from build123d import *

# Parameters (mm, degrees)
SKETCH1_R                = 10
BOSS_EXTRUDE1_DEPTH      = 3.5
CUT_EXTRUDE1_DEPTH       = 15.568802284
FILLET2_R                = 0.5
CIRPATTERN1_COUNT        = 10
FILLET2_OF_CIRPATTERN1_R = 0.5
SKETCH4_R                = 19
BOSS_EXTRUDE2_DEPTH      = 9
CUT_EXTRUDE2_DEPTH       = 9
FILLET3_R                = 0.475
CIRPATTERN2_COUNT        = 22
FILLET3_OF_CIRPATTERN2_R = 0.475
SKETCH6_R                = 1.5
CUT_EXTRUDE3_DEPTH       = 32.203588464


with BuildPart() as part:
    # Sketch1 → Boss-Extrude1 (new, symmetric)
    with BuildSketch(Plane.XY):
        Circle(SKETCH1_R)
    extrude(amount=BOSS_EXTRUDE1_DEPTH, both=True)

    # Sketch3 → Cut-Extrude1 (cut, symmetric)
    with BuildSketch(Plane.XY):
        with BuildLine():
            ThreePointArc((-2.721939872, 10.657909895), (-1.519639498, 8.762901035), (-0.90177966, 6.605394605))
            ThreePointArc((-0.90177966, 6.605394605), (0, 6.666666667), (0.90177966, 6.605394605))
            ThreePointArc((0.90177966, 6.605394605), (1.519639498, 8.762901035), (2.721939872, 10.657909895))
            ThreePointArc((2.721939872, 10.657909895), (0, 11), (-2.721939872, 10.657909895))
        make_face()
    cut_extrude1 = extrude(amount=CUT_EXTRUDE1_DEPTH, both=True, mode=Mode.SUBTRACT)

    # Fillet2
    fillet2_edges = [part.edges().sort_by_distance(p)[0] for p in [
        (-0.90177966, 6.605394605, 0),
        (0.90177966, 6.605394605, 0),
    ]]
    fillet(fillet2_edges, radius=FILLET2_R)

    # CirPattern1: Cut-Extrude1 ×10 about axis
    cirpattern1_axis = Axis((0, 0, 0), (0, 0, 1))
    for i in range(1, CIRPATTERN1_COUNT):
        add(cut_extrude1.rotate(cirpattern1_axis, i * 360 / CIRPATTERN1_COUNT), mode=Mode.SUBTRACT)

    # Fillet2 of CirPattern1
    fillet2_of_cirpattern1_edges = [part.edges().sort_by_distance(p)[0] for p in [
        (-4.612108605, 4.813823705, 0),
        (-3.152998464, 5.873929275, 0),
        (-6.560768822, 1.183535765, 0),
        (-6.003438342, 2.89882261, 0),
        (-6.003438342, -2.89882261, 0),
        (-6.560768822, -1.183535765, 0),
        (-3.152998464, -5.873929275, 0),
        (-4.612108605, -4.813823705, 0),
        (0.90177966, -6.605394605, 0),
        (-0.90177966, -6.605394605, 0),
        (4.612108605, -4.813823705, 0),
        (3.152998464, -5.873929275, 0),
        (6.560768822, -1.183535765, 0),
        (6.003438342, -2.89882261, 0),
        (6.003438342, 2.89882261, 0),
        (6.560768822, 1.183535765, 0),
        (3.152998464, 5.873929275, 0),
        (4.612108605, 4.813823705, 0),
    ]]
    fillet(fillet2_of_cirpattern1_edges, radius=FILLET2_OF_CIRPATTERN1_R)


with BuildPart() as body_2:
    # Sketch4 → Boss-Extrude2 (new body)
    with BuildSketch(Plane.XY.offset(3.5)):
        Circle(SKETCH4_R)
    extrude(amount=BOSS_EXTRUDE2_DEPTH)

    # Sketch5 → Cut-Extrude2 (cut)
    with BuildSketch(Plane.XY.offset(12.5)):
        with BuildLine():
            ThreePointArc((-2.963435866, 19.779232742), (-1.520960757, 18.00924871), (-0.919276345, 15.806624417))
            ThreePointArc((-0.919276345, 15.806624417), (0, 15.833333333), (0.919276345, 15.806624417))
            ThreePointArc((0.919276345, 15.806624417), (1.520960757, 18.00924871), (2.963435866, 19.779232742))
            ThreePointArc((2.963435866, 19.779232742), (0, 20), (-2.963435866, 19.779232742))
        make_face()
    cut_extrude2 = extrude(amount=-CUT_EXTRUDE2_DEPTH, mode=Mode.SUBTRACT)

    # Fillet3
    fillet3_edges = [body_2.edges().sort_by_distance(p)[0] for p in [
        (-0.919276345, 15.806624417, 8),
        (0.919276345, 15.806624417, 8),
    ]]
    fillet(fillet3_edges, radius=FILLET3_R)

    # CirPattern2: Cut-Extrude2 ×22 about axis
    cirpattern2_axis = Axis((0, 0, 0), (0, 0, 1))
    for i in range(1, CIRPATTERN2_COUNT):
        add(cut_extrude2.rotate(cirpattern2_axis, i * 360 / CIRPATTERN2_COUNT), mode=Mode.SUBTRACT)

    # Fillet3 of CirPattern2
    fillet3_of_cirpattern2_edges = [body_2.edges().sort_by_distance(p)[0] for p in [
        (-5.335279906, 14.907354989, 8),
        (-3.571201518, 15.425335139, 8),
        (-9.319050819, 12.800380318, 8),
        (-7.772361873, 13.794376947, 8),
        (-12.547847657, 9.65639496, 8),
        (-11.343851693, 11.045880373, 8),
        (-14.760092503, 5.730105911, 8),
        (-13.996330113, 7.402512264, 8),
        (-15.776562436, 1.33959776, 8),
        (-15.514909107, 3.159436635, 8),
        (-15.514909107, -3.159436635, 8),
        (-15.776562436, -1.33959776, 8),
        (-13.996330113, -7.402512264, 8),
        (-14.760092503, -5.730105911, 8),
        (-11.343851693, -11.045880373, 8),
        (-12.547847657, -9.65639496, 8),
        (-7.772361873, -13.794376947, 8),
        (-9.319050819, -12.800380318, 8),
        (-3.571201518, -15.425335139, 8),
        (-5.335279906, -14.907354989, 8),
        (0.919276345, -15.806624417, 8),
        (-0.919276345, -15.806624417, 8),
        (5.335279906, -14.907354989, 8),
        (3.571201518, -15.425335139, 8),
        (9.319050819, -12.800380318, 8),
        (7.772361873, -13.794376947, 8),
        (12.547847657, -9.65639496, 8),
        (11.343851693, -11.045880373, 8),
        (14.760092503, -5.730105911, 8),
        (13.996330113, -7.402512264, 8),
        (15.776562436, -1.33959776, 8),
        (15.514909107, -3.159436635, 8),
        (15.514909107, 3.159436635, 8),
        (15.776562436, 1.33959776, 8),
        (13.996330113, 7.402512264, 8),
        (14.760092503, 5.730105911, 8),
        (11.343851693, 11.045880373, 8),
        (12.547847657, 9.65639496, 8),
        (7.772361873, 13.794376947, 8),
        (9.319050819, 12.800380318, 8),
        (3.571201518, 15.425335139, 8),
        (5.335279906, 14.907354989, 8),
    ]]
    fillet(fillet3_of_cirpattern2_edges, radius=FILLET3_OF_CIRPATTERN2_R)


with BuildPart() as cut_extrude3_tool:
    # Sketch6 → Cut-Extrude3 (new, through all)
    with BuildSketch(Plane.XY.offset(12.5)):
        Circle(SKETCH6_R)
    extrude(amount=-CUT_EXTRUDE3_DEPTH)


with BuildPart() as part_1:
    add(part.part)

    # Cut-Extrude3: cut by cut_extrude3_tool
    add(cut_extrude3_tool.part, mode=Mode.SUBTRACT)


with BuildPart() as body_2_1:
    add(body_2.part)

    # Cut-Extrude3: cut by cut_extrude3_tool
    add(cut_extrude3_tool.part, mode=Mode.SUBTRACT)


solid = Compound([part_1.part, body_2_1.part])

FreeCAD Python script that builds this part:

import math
import FreeCAD as App
import Part
import Sketcher
Q = App.Units.Quantity


def edges_at(feature, points):
    """Names of the edges that pass closest to the given points."""
    edges = feature.Shape.Edges
    near = lambda p: min(range(len(edges)), key=lambda i: edges[i].distToShape(Part.Vertex(*p))[0])
    return sorted({f"Edge{near(p) + 1}" for p in points})

doc = App.newDocument("Part")
params = doc.addObject("Spreadsheet::Sheet", "Params")
for row, (alias, value) in enumerate([
    ("sketch1_diameter", "20 mm"),
    ("pad1_length", "7 mm"),
    ("sketch2_radius", "11 mm"),
    ("pocket1_length", "31.137605 mm"),
    ("fillet_radius", "0.5 mm"),
    ("fillet2_radius", "0.5 mm"),
    ("sketch3_diameter", "38 mm"),
    ("pad2_length", "9 mm"),
    ("sketch4_radius", "20 mm"),
    ("pocket2_length", "9 mm"),
    ("fillet3_radius", "0.475 mm"),
    ("fillet4_radius", "0.475 mm"),
    ("sketch5_diameter", "3 mm"),
    ("pad3_length", "32.203588 mm"),
], start=1):
    params.set(f"A{row}", alias)
    params.set(f"B{row}", "=" + value)
    params.setAlias(f"B{row}", alias)

body = doc.addObject("PartDesign::Body", "Body")

# Sketch on XY plane
sketch1 = doc.addObject("Sketcher::SketchObject", "Sketch")
body.addObject(sketch1)
sketch1.AttachmentSupport = (doc.XY_Plane, [""])
sketch1.MapMode = "FlatFace"
sketch1.addGeometry(Part.Circle(App.Vector(0, 0, 0), App.Vector(0, 0, 1), 10), False)
sketch1.addConstraint(Sketcher.Constraint("Coincident", 0, 3, -1, 1))
sketch1.addConstraint(Sketcher.Constraint("Diameter", 0, Q("20 mm")))
sketch1.setExpression("Constraints[1]", "Params.sketch1_diameter")
pad1 = doc.addObject("PartDesign::Pad", "Pad")
body.addObject(pad1)
pad1.Profile = sketch1
pad1.setExpression("Length", "Params.pad1_length")
pad1.Midplane = True

# Sketch on XY plane
sketch2 = doc.addObject("Sketcher::SketchObject", "Sketch001")
body.addObject(sketch2)
sketch2.AttachmentSupport = (doc.XY_Plane, [""])
sketch2.MapMode = "FlatFace"
sketch2.addGeometry(Part.ArcOfCircle(Part.Circle(App.Vector(-8.7, 5.5, 0), App.Vector(0, 0, 1), 7.9), math.radians(8), math.radians(41)), False)
sketch2.addGeometry(Part.ArcOfCircle(Part.Circle(App.Vector(0, 0, 0), App.Vector(0, 0, 1), 6.7), math.radians(82.23), math.radians(97.77)), False)
sketch2.addGeometry(Part.ArcOfCircle(Part.Circle(App.Vector(8.7, 5.5, 0), App.Vector(0, 0, 1), 7.9), math.radians(139), math.radians(172)), False)
sketch2.addGeometry(Part.ArcOfCircle(Part.Circle(App.Vector(0, 0, 0), App.Vector(0, 0, 1), 11), math.radians(76), math.radians(104)), False)
sketch2.addConstraint(Sketcher.Constraint("Coincident", 0, 1, 1, 2))
sketch2.addConstraint(Sketcher.Constraint("Coincident", 1, 1, 2, 2))
sketch2.addConstraint(Sketcher.Constraint("Coincident", 2, 1, 3, 1))
sketch2.addConstraint(Sketcher.Constraint("Coincident", 3, 2, 0, 2))
sketch2.addConstraint(Sketcher.Constraint("Coincident", 1, 3, -1, 1))
sketch2.addConstraint(Sketcher.Constraint("Coincident", 3, 3, -1, 1))
sketch2.addConstraint(Sketcher.Constraint("Equal", 0, 2))
sketch2.addConstraint(Sketcher.Constraint("Symmetric", 0, 3, 2, 3, -2))
sketch2.addConstraint(Sketcher.Constraint("Radius", 3, Q("11 mm")))
sketch2.addConstraint(Sketcher.Constraint("Radius", 0, Q("7.861265 mm")))
sketch2.addConstraint(Sketcher.Constraint("Radius", 1, Q("6.666667 mm")))
sketch2.addConstraint(Sketcher.Constraint("DistanceX", 0, 1, -1, 1, Q("0.90178 mm")))
sketch2.addConstraint(Sketcher.Constraint("DistanceX", -1, 1, 2, 1, Q("2.72194 mm")))
sketch2.setExpression("Constraints[8]", "Params.sketch2_radius")
pocket1 = doc.addObject("PartDesign::Pocket", "Pocket")
body.addObject(pocket1)
pocket1.Profile = sketch2
pocket1.setExpression("Length", "Params.pocket1_length")
pocket1.Midplane = True
doc.recompute()

fillet = doc.addObject("PartDesign::Fillet", "Fillet")
body.addObject(fillet)
fillet.Base = (pocket1, edges_at(pocket1, [(-0.902, 6.605, 0), (0.902, 6.605, 0)]))
fillet.setExpression("Radius", "Params.fillet_radius")
doc.recompute()

polarpattern = doc.addObject("PartDesign::PolarPattern", "PolarPattern")
body.addObject(polarpattern)
polarpattern.Originals = [pocket1]
polarpattern.Axis = (doc.Z_Axis, [""])
polarpattern.Angle = 360
polarpattern.Occurrences = 10
body.Tip = polarpattern
doc.recompute()

fillet2 = doc.addObject("PartDesign::Fillet", "Fillet001")
body.addObject(fillet2)
fillet2.Base = (polarpattern, edges_at(polarpattern, [
    (-4.612, 4.814, 0),
    (-3.153, 5.874, 0),
    (-6.561, 1.184, 0),
    (-6.003, 2.899, 0),
    (-6.003, -2.899, 0),
    (-6.561, -1.184, 0),
    (-3.153, -5.874, 0),
    (-4.612, -4.814, 0),
    (0.902, -6.605, 0),
    (-0.902, -6.605, 0),
    (4.612, -4.814, 0),
    (3.153, -5.874, 0),
    (6.561, -1.184, 0),
    (6.003, -2.899, 0),
    (6.003, 2.899, 0),
    (6.561, 1.184, 0),
    (3.153, 5.874, 0),
    (4.612, 4.814, 0),
]))
fillet2.setExpression("Radius", "Params.fillet2_radius")
body2 = doc.addObject("PartDesign::Body", "Body001")

# Sketch on XY plane
sketch3 = doc.addObject("Sketcher::SketchObject", "Sketch002")
body2.addObject(sketch3)
sketch3.AttachmentSupport = (doc.getObject("XY_Plane001"), [""])
sketch3.MapMode = "FlatFace"
sketch3.AttachmentOffset = App.Placement(App.Vector(0, 0, 3.5), App.Rotation())
sketch3.addGeometry(Part.Circle(App.Vector(0, 0, 0), App.Vector(0, 0, 1), 19), False)
sketch3.addConstraint(Sketcher.Constraint("Coincident", 0, 3, -1, 1))
sketch3.addConstraint(Sketcher.Constraint("Diameter", 0, Q("38 mm")))
sketch3.setExpression("Constraints[1]", "Params.sketch3_diameter")
pad2 = doc.addObject("PartDesign::Pad", "Pad001")
body2.addObject(pad2)
pad2.Profile = sketch3
pad2.setExpression("Length", "Params.pad2_length")

# Sketch on XY plane
sketch4 = doc.addObject("Sketcher::SketchObject", "Sketch003")
body2.addObject(sketch4)
sketch4.AttachmentSupport = (doc.getObject("XY_Plane001"), [""])
sketch4.MapMode = "FlatFace"
sketch4.AttachmentOffset = App.Placement(App.Vector(0, 0, 12.5), App.Rotation())
sketch4.addGeometry(Part.ArcOfCircle(Part.Circle(App.Vector(-6.4, 15.5, 0), App.Vector(0, 0, 1), 5.5), math.radians(3), math.radians(51)), False)
sketch4.addGeometry(Part.ArcOfCircle(Part.Circle(App.Vector(0, 0, 0), App.Vector(0, 0, 1), 15.8), math.radians(86.67), math.radians(93.33)), False)
sketch4.addGeometry(Part.ArcOfCircle(Part.Circle(App.Vector(6.4, 15.5, 0), App.Vector(0, 0, 1), 5.5), math.radians(129), math.radians(177)), False)
sketch4.addGeometry(Part.ArcOfCircle(Part.Circle(App.Vector(0, 0, 0), App.Vector(0, 0, 1), 20), math.radians(81.48), math.radians(98.52)), False)
sketch4.addConstraint(Sketcher.Constraint("Coincident", 0, 1, 1, 2))
sketch4.addConstraint(Sketcher.Constraint("Coincident", 1, 1, 2, 2))
sketch4.addConstraint(Sketcher.Constraint("Coincident", 2, 1, 3, 1))
sketch4.addConstraint(Sketcher.Constraint("Coincident", 3, 2, 0, 2))
sketch4.addConstraint(Sketcher.Constraint("Coincident", 1, 3, -1, 1))
sketch4.addConstraint(Sketcher.Constraint("Coincident", 3, 3, -1, 1))
sketch4.addConstraint(Sketcher.Constraint("Equal", 0, 2))
sketch4.addConstraint(Sketcher.Constraint("Symmetric", 0, 3, 2, 3, -2))
sketch4.addConstraint(Sketcher.Constraint("Radius", 3, Q("20 mm")))
sketch4.addConstraint(Sketcher.Constraint("Radius", 0, Q("5.513676 mm")))
sketch4.addConstraint(Sketcher.Constraint("Radius", 1, Q("15.833334 mm")))
sketch4.addConstraint(Sketcher.Constraint("DistanceX", 0, 3, -1, 1, Q("6.423651 mm")))
sketch4.addConstraint(Sketcher.Constraint("DistanceY", 0, 3, 0, 1, Q("0.320122 mm")))
sketch4.setExpression("Constraints[8]", "Params.sketch4_radius")
pocket2 = doc.addObject("PartDesign::Pocket", "Pocket001")
body2.addObject(pocket2)
pocket2.Profile = sketch4
pocket2.setExpression("Length", "Params.pocket2_length")
doc.recompute()

fillet3 = doc.addObject("PartDesign::Fillet", "Fillet002")
body2.addObject(fillet3)
fillet3.Base = (pocket2, edges_at(pocket2, [(-0.919, 15.807, 8), (0.919, 15.807, 8)]))
fillet3.setExpression("Radius", "Params.fillet3_radius")
doc.recompute()

polarpattern2 = doc.addObject("PartDesign::PolarPattern", "PolarPattern001")
body2.addObject(polarpattern2)
polarpattern2.Originals = [pocket2]
polarpattern2.Axis = (doc.getObject("Z_Axis001"), [""])
polarpattern2.Angle = 360
polarpattern2.Occurrences = 22
body2.Tip = polarpattern2
doc.recompute()

fillet4 = doc.addObject("PartDesign::Fillet", "Fillet003")
body2.addObject(fillet4)
fillet4.Base = (polarpattern2, edges_at(polarpattern2, [
    (-5.335, 14.907, 8),
    (-3.571, 15.425, 8),
    (-9.319, 12.8, 8),
    (-7.772, 13.794, 8),
    (-12.548, 9.656, 8),
    (-11.344, 11.046, 8),
    (-14.76, 5.73, 8),
    (-13.996, 7.403, 8),
    (-15.777, 1.34, 8),
    (-15.515, 3.159, 8),
    (-15.515, -3.159, 8),
    (-15.777, -1.34, 8),
    (-13.996, -7.403, 8),
    (-14.76, -5.73, 8),
    (-11.344, -11.046, 8),
    (-12.548, -9.656, 8),
    (-7.772, -13.794, 8),
    (-9.319, -12.8, 8),
    (-3.571, -15.425, 8),
    (-5.335, -14.907, 8),
    (0.919, -15.807, 8),
    (-0.919, -15.807, 8),
    (5.335, -14.907, 8),
    (3.571, -15.425, 8),
    (9.319, -12.8, 8),
    (7.772, -13.794, 8),
    (12.548, -9.656, 8),
    (11.344, -11.046, 8),
    (14.76, -5.73, 8),
    (13.996, -7.403, 8),
    (15.777, -1.34, 8),
    (15.515, -3.159, 8),
    (15.515, 3.159, 8),
    (15.777, 1.34, 8),
    (13.996, 7.403, 8),
    (14.76, 5.73, 8),
    (11.344, 11.046, 8),
    (12.548, 9.656, 8),
    (7.772, 13.794, 8),
    (9.319, 12.8, 8),
    (3.571, 15.425, 8),
    (5.335, 14.907, 8),
]))
fillet4.setExpression("Radius", "Params.fillet4_radius")
body3 = doc.addObject("PartDesign::Body", "Body002")

# Sketch on XY plane
sketch5 = doc.addObject("Sketcher::SketchObject", "Sketch004")
body3.addObject(sketch5)
sketch5.AttachmentSupport = (doc.getObject("XY_Plane002"), [""])
sketch5.MapMode = "FlatFace"
sketch5.AttachmentOffset = App.Placement(App.Vector(0, 0, 12.5), App.Rotation())
sketch5.addGeometry(Part.Circle(App.Vector(0, 0, 0), App.Vector(0, 0, 1), 1.5), False)
sketch5.addConstraint(Sketcher.Constraint("Coincident", 0, 3, -1, 1))
sketch5.addConstraint(Sketcher.Constraint("Diameter", 0, Q("3 mm")))
sketch5.setExpression("Constraints[1]", "Params.sketch5_diameter")
pad3 = doc.addObject("PartDesign::Pad", "Pad002")
body3.addObject(pad3)
pad3.Profile = sketch5
pad3.setExpression("Length", "Params.pad3_length")
pad3.Reversed = True
doc.recompute()

body4 = doc.addObject("PartDesign::Body", "Body003")
body4.BaseFeature = body3
boolean = doc.addObject("PartDesign::Boolean", "Boolean")
body.addObject(boolean)
boolean.Type = "Cut"
boolean.addObjects([body4])
doc.recompute()

boolean2 = doc.addObject("PartDesign::Boolean", "Boolean001")
body2.addObject(boolean2)
boolean2.Type = "Cut"
boolean2.addObjects([body3])

doc.recompute()
